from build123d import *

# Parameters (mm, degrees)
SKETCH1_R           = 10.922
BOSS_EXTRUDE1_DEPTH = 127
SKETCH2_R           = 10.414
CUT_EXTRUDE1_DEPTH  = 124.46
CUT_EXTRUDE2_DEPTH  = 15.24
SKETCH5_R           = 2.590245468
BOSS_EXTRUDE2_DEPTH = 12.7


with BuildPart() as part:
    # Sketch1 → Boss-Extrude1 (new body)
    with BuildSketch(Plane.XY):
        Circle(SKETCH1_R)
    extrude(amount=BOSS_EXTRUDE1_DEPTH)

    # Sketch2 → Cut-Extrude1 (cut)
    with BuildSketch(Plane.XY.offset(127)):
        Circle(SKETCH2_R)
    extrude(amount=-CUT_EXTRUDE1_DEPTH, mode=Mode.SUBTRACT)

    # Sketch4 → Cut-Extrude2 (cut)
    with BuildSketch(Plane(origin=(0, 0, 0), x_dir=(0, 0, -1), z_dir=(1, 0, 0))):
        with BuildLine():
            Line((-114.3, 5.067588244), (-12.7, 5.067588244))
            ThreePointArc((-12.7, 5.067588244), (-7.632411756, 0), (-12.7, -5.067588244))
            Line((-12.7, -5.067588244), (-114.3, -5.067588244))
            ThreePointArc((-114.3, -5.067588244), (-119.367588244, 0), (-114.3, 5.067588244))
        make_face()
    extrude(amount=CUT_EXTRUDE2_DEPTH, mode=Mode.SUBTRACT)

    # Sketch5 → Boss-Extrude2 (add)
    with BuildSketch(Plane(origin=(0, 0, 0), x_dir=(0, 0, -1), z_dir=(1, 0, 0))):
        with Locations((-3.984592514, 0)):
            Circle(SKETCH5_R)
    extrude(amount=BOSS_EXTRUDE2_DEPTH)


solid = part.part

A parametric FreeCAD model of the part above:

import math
import FreeCAD as App
import Part
import Sketcher

V = App.Vector
Q = App.Units.Quantity

doc = App.newDocument("Part")
body = doc.addObject("PartDesign::Body", "Body")

# Sketch on XY plane
sketch1 = body.newObject("Sketcher::SketchObject", "Sketch")
sketch1.AttachmentSupport = (doc.getObject("XY_Plane"), [""])
sketch1.MapMode = "FlatFace"
sketch1.addGeometry(Part.Circle(V(0, 0, 0), V(0, 0, 1), 10.922), False)
sketch1.addConstraint(Sketcher.Constraint("Coincident", 0, 3, -1, 1))
sketch1.addConstraint(Sketcher.Constraint("Diameter", 0, Q("0.86 in")))
pad1 = body.newObject("PartDesign::Pad", "Pad")
pad1.Profile = sketch1
pad1.Length = Q("5 in")

# Sketch on XY plane
sketch2 = body.newObject("Sketcher::SketchObject", "Sketch001")
sketch2.AttachmentSupport = (doc.getObject("XY_Plane"), [""])
sketch2.MapMode = "FlatFace"
sketch2.AttachmentOffset = App.Placement(V(0, 0, 5 * 25.4), App.Rotation())
sketch2.addGeometry(Part.Circle(V(0, 0, 0), V(0, 0, 1), 10.414), False)
sketch2.addConstraint(Sketcher.Constraint("Coincident", 0, 3, -1, 1))
sketch2.addConstraint(Sketcher.Constraint("Diameter", 0, Q("0.82 in")))
pocket1 = body.newObject("PartDesign::Pocket", "Pocket")
pocket1.Profile = sketch2
pocket1.Length = Q("4.9 in")

# Sketch on YZ plane
sketch3 = body.newObject("Sketcher::SketchObject", "Sketch002")
sketch3.AttachmentSupport = (doc.getObject("YZ_Plane"), [""])
sketch3.MapMode = "FlatFace"
sketch3.addGeometry(Part.LineSegment(V(5.067588, 12.7, 0), V(5.067588, 114.3, 0)), False)
sketch3.addGeometry(Part.ArcOfCircle(Part.Circle(V(0, 114.3, 0), V(0, 0, 1), 5.067588), math.radians(0), math.radians(180)), False)
sketch3.addGeometry(Part.LineSegment(V(-5.067588, 114.3, 0), V(-5.067588, 12.7, 0)), False)
sketch3.addGeometry(Part.ArcOfCircle(Part.Circle(V(0, 12.7, 0), V(0, 0, 1), 5.067588), math.radians(180), math.radians(360)), False)
sketch3.addConstraint(Sketcher.Constraint("Tangent", 0, 2, 1, 1))
sketch3.addConstraint(Sketcher.Constraint("Tangent", 1, 2, 2, 1))
sketch3.addConstraint(Sketcher.Constraint("Tangent", 2, 2, 3, 1))
sketch3.addConstraint(Sketcher.Constraint("Tangent", 3, 2, 0, 1))
sketch3.addConstraint(Sketcher.Constraint("Vertical", 0))
sketch3.addConstraint(Sketcher.Constraint("Vertical", 2))
sketch3.addConstraint(Sketcher.Constraint("PointOnObject", 1, 3, -2))
sketch3.addConstraint(Sketcher.Constraint("DistanceY", 0, 1, 0, 2, Q("4 in")))
sketch3.addConstraint(Sketcher.Constraint("DistanceY", -1, 1, 1, 3, Q("4.5 in")))
sketch3.addConstraint(Sketcher.Constraint("Radius", 1, Q("5.067588 mm")))
pocket2 = body.newObject("PartDesign::Pocket", "Pocket001")
pocket2.Profile = sketch3
pocket2.Length = Q("0.6 in")
pocket2.Reversed = True

# Sketch on YZ plane
sketch4 = body.newObject("Sketcher::SketchObject", "Sketch003")
sketch4.AttachmentSupport = (doc.getObject("YZ_Plane"), [""])
sketch4.MapMode = "FlatFace"
sketch4.addGeometry(Part.Circle(V(0, 3.984593, 0), V(0, 0, 1), 2.590245), False)
sketch4.addConstraint(Sketcher.Constraint("PointOnObject", 0, 3, -2))
sketch4.addConstraint(Sketcher.Constraint("Diameter", 0, Q("5.180491 mm")))
sketch4.addConstraint(Sketcher.Constraint("DistanceY", -1, 1, 0, 3, Q("3.984593 mm")))
pad2 = body.newObject("PartDesign::Pad", "Pad001")
pad2.Profile = sketch4
pad2.Length = Q("0.5 in")

doc.recompute()
